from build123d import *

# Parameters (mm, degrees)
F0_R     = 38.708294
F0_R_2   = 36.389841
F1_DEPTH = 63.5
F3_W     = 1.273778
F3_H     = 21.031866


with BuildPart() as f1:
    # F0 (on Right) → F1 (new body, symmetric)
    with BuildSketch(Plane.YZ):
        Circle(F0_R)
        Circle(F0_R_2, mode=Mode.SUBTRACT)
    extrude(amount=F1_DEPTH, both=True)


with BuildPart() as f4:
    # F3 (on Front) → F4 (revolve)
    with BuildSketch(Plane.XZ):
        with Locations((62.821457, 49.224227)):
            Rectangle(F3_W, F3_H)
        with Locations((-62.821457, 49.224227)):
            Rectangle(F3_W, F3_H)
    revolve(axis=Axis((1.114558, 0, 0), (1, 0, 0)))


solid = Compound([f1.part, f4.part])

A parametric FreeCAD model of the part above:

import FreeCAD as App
import Part
import Sketcher

V = App.Vector
Q = App.Units.Quantity

doc = App.newDocument("Part")
params = doc.addObject("Spreadsheet::Sheet", "Params")
for row, (alias, value) in enumerate([
    ("pad1_length", "5 in"),
    ("revolution_angle", "360 deg"),
], start=1):
    params.set(f"A{row}", alias)
    params.set(f"B{row}", "=" + value)
    params.setAlias(f"B{row}", alias)

body = doc.addObject("PartDesign::Body", "Body")

# Sketch on YZ plane
sketch1 = body.newObject("Sketcher::SketchObject", "Sketch")
sketch1.AttachmentSupport = (doc.getObject("YZ_Plane"), [""])
sketch1.MapMode = "FlatFace"
sketch1.addGeometry([
    Part.Circle(V(0, 0, 0), V(0, 0, 1), 39),
    Part.Circle(V(0, 0, 0), V(0, 0, 1), 36),
], False)
sketch1.addConstraint([
    Sketcher.Constraint("Coincident", 0, 3, -1, 1),
    Sketcher.Constraint("Coincident", 1, 3, -1, 1),
    Sketcher.Constraint("Diameter", 0, Q("77.416588 mm")),
    Sketcher.Constraint("Diameter", 1, Q("72.779682 mm")),
])
pad1 = body.newObject("PartDesign::Pad", "Pad")
pad1.Profile = sketch1
pad1.setExpression("Length", "Params.pad1_length")
pad1.Midplane = True
body2 = doc.addObject("PartDesign::Body", "Body001")
body2.AllowCompound = True

# Sketch on XZ plane
sketch2 = body2.newObject("Sketcher::SketchObject", "Sketch001")
sketch2.AttachmentSupport = (doc.getObject("XZ_Plane001"), [""])
sketch2.MapMode = "FlatFace"
sketch2.addGeometry([
    Part.LineSegment(V(62.2, 59.7, 0), V(62.2, 38.7, 0)),  # 0
    Part.LineSegment(V(62.2, 38.7, 0), V(63.5, 38.7, 0)),  # 1
    Part.LineSegment(V(63.5, 38.7, 0), V(63.5, 59.7, 0)),  # 2
    Part.LineSegment(V(63.5, 59.7, 0), V(62.2, 59.7, 0)),  # 3
    Part.LineSegment(V(-63.5, 59.7, 0), V(-63.5, 38.7, 0)),  # 4
    Part.LineSegment(V(-63.5, 38.7, 0), V(-62.2, 38.7, 0)),  # 5
    Part.LineSegment(V(-62.2, 38.7, 0), V(-62.2, 59.7, 0)),  # 6
    Part.LineSegment(V(-62.2, 59.7, 0), V(-63.5, 59.7, 0)),  # 7
], False)
sketch2.addConstraint([
    Sketcher.Constraint("Coincident", 0, 2, 1, 1),
    Sketcher.Constraint("Coincident", 1, 2, 2, 1),
    Sketcher.Constraint("Coincident", 2, 2, 3, 1),
    Sketcher.Constraint("Coincident", 3, 2, 0, 1),
    Sketcher.Constraint("Coincident", 4, 2, 5, 1),
    Sketcher.Constraint("Coincident", 5, 2, 6, 1),
    Sketcher.Constraint("Coincident", 6, 2, 7, 1),
    Sketcher.Constraint("Coincident", 7, 2, 4, 1),
    Sketcher.Constraint("Vertical", 0),
    Sketcher.Constraint("Horizontal", 1),
    Sketcher.Constraint("Vertical", 2),
    Sketcher.Constraint("Horizontal", 3),
    Sketcher.Constraint("Vertical", 4),
    Sketcher.Constraint("Horizontal", 5),
    Sketcher.Constraint("Vertical", 6),
    Sketcher.Constraint("Horizontal", 7),
    Sketcher.Constraint("Symmetric", 1, 2, 4, 2, -2),
    Sketcher.Constraint("Symmetric", 3, 2, 6, 2, -2),
    Sketcher.Constraint("DistanceX", 1, 1, 1, 2, Q("1.273778 mm")),
    Sketcher.Constraint("DistanceY", 0, 2, 0, 1, Q("21.031866 mm")),
    Sketcher.Constraint("DistanceY", -1, 1, 2, 2, Q("59.74016 mm")),
    Sketcher.Constraint("DistanceX", 4, 2, 1, 2, Q("126.916692 mm")),
])
revolution = body2.newObject("PartDesign::Revolution", "Revolution")
revolution.Profile = sketch2
revolution.ReferenceAxis = (sketch2, ["H_Axis"])
revolution.setExpression("Angle", "Params.revolution_angle")

doc.recompute()
